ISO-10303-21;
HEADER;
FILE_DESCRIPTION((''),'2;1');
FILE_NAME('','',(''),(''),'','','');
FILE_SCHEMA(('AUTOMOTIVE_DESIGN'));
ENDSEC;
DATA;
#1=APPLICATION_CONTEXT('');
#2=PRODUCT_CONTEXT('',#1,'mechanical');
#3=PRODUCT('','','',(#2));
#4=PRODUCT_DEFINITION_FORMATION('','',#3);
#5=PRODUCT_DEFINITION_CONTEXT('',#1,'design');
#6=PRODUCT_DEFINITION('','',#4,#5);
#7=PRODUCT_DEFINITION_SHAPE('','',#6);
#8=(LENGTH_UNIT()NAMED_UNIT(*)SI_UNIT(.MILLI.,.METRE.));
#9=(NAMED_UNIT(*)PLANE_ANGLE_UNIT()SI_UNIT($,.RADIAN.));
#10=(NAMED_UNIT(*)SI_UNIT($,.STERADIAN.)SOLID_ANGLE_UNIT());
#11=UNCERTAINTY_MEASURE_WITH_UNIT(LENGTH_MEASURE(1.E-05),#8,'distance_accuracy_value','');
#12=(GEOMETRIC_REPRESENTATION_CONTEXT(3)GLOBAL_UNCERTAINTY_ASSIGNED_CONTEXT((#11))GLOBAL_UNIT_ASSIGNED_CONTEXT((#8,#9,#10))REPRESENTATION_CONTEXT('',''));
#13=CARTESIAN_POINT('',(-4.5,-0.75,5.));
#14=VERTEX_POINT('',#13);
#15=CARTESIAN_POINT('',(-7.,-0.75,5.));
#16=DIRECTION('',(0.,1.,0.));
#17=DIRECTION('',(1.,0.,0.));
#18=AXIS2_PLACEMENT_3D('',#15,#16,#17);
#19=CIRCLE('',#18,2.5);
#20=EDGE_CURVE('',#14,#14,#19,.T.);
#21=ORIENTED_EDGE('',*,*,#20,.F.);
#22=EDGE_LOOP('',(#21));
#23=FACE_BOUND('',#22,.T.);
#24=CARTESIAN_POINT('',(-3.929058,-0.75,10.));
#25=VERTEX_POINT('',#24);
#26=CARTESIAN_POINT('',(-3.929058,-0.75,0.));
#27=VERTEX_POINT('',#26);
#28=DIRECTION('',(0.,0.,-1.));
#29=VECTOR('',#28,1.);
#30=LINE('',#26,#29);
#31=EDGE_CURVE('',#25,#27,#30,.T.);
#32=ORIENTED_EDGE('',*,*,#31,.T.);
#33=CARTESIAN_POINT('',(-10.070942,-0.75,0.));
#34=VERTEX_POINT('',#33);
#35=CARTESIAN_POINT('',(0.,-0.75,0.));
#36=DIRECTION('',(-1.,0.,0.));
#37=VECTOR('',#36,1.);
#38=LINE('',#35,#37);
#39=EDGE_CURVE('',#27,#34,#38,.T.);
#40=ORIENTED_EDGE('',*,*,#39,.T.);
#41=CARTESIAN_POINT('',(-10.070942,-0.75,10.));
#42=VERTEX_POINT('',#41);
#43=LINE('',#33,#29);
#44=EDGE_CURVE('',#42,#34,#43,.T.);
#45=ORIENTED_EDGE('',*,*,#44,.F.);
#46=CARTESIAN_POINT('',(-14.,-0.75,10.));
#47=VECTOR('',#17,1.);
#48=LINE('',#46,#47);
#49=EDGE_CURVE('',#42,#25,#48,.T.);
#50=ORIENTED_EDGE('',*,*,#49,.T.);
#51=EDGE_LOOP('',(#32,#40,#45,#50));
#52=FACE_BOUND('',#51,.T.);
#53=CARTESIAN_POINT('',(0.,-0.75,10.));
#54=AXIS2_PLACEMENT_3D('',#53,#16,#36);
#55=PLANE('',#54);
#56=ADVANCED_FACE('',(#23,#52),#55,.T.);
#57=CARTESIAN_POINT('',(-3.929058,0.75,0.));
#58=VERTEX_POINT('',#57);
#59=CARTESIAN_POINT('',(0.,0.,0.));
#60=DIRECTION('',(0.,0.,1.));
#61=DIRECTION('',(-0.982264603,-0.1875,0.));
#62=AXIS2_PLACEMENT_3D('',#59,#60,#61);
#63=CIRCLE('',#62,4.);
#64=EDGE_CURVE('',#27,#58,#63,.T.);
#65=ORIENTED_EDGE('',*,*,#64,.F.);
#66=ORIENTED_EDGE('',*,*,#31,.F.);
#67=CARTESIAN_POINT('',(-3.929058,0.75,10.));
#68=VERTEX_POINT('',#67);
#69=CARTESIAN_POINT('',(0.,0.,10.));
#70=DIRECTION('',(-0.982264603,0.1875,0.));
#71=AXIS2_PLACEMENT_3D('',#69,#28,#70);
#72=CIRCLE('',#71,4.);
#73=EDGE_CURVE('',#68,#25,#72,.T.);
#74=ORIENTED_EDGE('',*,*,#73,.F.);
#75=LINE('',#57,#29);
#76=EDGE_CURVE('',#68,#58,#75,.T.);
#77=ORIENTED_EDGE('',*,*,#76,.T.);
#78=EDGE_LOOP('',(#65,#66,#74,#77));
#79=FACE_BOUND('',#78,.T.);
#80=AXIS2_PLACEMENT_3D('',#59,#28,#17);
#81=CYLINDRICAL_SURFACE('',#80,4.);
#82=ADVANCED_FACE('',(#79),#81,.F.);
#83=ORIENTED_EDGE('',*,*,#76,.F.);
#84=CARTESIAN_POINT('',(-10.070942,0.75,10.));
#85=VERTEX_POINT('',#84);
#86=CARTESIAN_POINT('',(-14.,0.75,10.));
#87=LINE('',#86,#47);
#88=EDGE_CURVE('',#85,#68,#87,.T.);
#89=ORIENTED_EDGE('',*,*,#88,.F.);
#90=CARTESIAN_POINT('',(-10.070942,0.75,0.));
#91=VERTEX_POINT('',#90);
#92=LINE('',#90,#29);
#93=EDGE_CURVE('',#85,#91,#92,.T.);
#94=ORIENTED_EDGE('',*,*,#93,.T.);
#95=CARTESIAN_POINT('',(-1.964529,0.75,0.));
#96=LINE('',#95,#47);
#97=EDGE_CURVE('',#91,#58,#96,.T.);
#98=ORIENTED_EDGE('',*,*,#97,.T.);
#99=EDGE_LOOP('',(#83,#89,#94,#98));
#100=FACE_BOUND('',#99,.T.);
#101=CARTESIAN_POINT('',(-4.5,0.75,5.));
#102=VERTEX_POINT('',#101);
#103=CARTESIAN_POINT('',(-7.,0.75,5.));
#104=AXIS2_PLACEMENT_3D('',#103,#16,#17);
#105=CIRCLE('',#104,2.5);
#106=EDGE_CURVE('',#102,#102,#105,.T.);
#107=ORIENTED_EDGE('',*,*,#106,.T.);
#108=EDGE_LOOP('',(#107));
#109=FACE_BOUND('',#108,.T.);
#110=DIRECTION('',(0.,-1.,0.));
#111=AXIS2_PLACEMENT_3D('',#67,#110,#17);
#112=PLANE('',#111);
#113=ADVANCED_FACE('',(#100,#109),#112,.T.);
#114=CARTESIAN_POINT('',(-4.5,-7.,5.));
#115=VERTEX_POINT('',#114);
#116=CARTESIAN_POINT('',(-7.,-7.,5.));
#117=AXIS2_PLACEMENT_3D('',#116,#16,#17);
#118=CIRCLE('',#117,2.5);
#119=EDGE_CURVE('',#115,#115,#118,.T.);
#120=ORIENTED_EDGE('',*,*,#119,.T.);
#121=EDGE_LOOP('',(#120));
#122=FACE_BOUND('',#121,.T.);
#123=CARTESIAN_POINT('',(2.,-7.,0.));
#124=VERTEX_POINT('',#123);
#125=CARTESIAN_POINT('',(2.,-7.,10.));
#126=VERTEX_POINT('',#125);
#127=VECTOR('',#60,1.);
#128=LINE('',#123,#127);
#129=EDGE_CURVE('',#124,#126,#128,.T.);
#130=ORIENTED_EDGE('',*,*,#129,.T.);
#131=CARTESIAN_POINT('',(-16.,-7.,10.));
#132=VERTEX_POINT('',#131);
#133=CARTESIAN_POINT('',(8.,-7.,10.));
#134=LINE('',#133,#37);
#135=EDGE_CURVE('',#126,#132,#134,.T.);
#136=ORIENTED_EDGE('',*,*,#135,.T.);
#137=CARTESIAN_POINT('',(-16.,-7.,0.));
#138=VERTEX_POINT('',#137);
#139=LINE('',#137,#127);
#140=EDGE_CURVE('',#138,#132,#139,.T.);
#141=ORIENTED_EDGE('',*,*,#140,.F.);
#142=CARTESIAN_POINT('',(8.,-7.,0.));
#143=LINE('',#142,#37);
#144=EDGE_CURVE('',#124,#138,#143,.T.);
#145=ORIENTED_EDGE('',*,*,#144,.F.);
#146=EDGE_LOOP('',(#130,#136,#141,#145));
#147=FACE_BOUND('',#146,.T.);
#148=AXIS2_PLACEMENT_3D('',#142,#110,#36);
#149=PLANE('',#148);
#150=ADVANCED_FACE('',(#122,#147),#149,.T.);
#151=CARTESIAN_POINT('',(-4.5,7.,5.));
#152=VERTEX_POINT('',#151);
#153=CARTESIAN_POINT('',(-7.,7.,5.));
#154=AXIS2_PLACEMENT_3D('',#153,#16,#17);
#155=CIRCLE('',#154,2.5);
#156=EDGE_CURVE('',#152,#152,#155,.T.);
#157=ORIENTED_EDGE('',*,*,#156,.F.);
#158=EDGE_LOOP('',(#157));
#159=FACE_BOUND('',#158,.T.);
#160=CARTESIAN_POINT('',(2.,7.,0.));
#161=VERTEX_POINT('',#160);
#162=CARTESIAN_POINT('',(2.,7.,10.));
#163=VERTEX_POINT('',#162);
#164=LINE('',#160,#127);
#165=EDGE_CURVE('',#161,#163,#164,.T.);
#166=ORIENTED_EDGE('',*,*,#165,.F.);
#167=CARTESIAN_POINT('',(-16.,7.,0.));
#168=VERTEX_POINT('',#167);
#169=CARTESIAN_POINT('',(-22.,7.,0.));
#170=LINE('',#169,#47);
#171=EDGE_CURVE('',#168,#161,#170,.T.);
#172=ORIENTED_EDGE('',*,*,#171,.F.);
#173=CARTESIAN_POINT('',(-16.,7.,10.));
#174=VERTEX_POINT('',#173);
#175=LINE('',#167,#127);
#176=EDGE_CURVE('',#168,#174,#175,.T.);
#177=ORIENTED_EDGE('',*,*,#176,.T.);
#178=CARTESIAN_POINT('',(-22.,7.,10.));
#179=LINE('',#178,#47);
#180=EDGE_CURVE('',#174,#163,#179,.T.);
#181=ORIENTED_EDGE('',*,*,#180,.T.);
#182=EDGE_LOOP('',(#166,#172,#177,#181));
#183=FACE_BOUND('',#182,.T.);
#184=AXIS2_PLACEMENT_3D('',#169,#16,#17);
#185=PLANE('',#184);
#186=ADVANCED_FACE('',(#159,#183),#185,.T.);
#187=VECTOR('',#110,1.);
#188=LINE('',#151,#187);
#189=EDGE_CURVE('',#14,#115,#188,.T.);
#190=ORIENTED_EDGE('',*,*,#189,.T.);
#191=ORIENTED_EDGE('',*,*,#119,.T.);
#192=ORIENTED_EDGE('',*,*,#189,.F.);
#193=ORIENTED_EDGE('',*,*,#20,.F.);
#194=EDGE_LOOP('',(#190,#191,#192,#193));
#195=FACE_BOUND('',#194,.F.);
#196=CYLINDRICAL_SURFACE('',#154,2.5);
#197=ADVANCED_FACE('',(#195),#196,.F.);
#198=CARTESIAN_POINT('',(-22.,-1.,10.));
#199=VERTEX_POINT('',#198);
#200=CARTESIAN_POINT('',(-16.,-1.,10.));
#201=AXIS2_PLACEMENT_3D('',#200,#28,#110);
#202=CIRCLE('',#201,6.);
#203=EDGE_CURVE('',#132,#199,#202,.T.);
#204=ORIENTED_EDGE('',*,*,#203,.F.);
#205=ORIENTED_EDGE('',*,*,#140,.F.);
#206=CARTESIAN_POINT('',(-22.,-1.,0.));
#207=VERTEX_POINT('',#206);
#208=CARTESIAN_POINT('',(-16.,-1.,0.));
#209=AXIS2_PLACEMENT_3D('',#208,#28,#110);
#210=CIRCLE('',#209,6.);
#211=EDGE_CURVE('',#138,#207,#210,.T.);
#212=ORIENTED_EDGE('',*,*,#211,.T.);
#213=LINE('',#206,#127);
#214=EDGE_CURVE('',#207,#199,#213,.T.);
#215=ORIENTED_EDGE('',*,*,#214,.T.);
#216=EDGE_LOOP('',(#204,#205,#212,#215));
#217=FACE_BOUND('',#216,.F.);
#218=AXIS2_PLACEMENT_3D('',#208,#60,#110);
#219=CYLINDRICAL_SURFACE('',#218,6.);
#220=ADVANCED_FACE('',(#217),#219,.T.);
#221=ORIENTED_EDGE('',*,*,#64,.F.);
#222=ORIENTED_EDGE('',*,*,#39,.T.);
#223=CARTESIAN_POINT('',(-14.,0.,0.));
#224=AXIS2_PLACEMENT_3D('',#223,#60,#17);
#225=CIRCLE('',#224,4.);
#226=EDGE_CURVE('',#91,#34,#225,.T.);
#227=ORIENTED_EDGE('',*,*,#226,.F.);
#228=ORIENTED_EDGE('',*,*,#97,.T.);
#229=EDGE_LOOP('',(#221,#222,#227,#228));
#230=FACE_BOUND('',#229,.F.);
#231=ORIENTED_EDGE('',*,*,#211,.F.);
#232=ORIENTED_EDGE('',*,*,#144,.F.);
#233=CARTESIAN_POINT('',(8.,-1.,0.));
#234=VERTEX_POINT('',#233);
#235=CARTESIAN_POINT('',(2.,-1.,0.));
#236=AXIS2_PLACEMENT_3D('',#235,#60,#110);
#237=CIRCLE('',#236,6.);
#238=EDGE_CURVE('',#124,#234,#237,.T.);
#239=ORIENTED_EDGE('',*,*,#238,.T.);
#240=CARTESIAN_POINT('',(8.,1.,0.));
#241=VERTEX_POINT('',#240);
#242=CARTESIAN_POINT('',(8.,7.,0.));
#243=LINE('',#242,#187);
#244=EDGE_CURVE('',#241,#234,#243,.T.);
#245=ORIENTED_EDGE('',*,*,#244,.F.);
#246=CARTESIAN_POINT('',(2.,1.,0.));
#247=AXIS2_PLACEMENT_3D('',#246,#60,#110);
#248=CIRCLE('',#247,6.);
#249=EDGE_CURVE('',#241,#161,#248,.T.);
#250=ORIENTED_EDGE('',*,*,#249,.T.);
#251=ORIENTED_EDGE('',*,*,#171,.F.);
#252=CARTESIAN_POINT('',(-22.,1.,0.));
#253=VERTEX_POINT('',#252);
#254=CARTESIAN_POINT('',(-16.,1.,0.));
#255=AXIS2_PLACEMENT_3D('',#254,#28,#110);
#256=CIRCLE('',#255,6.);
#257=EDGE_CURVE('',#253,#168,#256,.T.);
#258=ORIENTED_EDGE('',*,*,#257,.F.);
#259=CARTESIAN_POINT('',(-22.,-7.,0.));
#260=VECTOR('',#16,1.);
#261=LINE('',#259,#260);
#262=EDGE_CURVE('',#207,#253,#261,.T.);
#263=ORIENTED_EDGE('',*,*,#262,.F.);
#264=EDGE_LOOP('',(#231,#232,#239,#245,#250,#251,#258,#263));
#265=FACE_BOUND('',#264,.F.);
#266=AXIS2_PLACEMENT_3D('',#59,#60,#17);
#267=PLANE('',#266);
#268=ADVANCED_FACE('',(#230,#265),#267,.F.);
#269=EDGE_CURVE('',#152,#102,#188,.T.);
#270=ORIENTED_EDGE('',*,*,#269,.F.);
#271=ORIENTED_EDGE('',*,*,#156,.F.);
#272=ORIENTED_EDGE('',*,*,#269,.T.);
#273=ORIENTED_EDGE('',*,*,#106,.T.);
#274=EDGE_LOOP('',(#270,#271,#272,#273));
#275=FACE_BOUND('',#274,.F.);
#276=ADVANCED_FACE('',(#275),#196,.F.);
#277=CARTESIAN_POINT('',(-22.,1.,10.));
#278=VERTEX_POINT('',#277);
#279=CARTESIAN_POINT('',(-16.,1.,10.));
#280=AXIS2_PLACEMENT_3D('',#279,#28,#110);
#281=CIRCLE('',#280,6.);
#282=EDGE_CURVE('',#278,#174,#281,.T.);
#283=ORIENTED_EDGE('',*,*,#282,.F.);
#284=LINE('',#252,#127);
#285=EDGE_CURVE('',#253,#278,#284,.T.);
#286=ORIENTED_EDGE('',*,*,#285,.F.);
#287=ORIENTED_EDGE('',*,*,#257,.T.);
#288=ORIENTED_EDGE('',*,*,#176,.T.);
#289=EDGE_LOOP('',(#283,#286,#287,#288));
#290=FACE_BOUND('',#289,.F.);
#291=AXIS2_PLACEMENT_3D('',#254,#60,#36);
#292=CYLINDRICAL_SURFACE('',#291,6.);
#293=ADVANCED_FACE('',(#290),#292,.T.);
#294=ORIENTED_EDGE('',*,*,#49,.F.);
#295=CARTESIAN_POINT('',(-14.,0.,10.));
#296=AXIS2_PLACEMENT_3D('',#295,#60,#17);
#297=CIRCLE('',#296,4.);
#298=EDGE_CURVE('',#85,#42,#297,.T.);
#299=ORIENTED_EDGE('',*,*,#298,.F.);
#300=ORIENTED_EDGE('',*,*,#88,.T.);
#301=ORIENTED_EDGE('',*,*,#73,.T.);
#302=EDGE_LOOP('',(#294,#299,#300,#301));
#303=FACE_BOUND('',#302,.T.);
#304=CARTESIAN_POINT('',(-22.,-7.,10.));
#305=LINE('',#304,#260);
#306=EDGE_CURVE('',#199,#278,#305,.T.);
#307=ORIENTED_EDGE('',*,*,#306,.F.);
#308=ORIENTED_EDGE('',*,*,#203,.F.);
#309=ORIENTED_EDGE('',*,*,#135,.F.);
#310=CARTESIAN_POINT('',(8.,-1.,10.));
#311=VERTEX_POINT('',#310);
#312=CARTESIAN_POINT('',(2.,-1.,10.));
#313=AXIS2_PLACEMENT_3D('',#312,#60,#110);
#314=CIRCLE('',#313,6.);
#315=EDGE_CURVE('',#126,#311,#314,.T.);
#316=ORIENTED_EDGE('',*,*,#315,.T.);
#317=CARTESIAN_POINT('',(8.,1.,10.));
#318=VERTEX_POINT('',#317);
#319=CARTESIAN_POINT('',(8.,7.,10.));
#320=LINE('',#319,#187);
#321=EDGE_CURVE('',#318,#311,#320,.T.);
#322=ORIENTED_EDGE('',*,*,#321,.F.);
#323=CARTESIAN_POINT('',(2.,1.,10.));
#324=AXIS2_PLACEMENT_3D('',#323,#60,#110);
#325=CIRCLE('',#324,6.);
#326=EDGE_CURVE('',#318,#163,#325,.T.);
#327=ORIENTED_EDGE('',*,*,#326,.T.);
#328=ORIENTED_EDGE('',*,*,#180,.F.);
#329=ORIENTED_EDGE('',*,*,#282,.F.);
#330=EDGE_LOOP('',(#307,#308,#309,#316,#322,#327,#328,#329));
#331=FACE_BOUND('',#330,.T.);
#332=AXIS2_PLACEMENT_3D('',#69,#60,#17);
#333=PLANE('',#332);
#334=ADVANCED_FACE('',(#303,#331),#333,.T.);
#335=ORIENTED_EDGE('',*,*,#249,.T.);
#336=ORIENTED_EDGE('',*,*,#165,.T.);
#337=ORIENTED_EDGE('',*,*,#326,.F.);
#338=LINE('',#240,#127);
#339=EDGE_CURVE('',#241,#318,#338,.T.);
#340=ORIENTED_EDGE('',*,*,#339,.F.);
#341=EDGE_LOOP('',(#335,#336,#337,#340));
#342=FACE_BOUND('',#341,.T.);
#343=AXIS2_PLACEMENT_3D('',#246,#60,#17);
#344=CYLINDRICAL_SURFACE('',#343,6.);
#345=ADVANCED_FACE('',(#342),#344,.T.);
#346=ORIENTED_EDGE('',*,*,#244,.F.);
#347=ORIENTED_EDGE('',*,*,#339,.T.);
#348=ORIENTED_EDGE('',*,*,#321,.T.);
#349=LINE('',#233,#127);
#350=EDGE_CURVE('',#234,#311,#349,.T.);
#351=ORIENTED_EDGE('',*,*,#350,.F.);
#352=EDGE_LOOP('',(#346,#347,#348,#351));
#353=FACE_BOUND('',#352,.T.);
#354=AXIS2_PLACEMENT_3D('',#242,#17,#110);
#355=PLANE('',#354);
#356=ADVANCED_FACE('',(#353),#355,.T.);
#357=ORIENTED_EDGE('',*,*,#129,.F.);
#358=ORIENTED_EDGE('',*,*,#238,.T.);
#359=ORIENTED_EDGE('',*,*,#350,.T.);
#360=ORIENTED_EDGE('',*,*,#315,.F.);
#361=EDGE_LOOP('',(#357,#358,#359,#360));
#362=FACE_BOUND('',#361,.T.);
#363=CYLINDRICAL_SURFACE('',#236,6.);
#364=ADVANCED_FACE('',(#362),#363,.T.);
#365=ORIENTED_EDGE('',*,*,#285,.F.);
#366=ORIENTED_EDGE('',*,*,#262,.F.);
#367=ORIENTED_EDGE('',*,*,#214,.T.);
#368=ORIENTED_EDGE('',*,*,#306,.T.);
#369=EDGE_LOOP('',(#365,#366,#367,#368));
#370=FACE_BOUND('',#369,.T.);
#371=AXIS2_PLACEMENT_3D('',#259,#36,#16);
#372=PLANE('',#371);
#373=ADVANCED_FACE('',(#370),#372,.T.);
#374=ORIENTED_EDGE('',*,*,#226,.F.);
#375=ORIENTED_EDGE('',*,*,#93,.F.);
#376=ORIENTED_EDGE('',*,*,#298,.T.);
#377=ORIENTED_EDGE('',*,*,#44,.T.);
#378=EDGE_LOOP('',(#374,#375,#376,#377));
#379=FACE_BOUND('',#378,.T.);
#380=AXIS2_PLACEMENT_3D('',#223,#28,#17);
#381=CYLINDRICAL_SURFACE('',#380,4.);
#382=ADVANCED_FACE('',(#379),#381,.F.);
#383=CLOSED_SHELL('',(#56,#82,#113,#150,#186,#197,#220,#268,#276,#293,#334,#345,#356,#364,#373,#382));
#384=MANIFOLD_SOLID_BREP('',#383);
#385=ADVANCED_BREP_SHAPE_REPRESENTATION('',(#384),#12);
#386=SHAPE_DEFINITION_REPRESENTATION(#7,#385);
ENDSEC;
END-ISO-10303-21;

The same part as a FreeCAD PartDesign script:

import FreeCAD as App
import Part
import Sketcher

V = App.Vector


def edges_at(feature, points):
    """Names of the edges that pass closest to the given points."""
    edges = feature.Shape.Edges
    near = lambda p: min(range(len(edges)), key=lambda i: edges[i].distToShape(Part.Vertex(*p))[0])
    return sorted({f"Edge{near(p) + 1}" for p in points})

doc = App.newDocument("Part")
params = doc.addObject("Spreadsheet::Sheet", "Params")
for row, (alias, value) in enumerate([
    ("sketch1_diameter", "8 mm"),
    ("sketch1_width", "30 mm"),
    ("sketch1_height", "14 mm"),
    ("pad1_length", "10 mm"),
    ("sketch2_diameter", "5 mm"),
    ("fillet_radius", "6 mm"),
    ("sketch3_height", "1.5 mm"),
    ("sketch3_width", "14 mm"),
], start=1):
    params.set(f"A{row}", alias)
    params.set(f"B{row}", "=" + value)
    params.setAlias(f"B{row}", alias)

body = doc.addObject("PartDesign::Body", "Body")

sketch1 = body.newObject("Sketcher::SketchObject", "Sketch")
sketch1.AttachmentSupport = (doc.getObject("XY_Plane"), [""])
sketch1.MapMode = "FlatFace"
sketch1.addGeometry([
    Part.LineSegment(V(-22, -7, 0), V(8, -7, 0)),
    Part.LineSegment(V(8, -7, 0), V(8, 7, 0)),
    Part.LineSegment(V(8, 7, 0), V(-22, 7, 0)),
    Part.LineSegment(V(-22, 7, 0), V(-22, -7, 0)),
    Part.Circle(V(-14, 0, 0), V(0, 0, 1), 4),
    Part.Circle(V(0, 0, 0), V(0, 0, 1), 4),
], False)
sketch1.addConstraint([
    Sketcher.Constraint("Coincident", 0, 2, 1, 1),
    Sketcher.Constraint("Coincident", 1, 2, 2, 1),
    Sketcher.Constraint("Coincident", 2, 2, 3, 1),
    Sketcher.Constraint("Coincident", 3, 2, 0, 1),
    Sketcher.Constraint("Horizontal", 0),
    Sketcher.Constraint("Vertical", 1),
    Sketcher.Constraint("Horizontal", 2),
    Sketcher.Constraint("Vertical", 3),
    Sketcher.Constraint("Coincident", 5, 3, -1, 1),
    Sketcher.Constraint("Equal", 4, 5),
    Sketcher.Constraint("PointOnObject", 4, 3, -1),
    Sketcher.Constraint("Diameter", 4, 8.0),
    Sketcher.Constraint("DistanceX", 0, 1, 0, 2, 30.0),
    Sketcher.Constraint("DistanceY", 1, 1, 1, 2, 14.0),
    Sketcher.Constraint("DistanceX", 4, 3, -1, 1, 14.0),
    Sketcher.Constraint("DistanceX", -1, 1, 0, 2, 8.0),
    Sketcher.Constraint("DistanceY", 0, 2, -1, 1, 7.0),
])
sketch1.setExpression("Constraints[11]", "Params.sketch1_diameter")
sketch1.setExpression("Constraints[12]", "Params.sketch1_width")
sketch1.setExpression("Constraints[13]", "Params.sketch1_height")
pad1 = body.newObject("PartDesign::Pad", "Pad")
pad1.Profile = sketch1
pad1.setExpression("Length", "Params.pad1_length")

sketch2 = body.newObject("Sketcher::SketchObject", "Sketch001")
sketch2.AttachmentSupport = (doc.getObject("XZ_Plane"), [""])
sketch2.MapMode = "FlatFace"
sketch2.AttachmentOffset = App.Placement(V(0, 0, -7), App.Rotation())
sketch2.addGeometry(Part.Circle(V(-7, 5, 0), V(0, 0, 1), 2.5), False)
sketch2.addConstraint([
    Sketcher.Constraint("Diameter", 0, 5.0),
    Sketcher.Constraint("DistanceY", -1, 1, 0, 3, 5.0),
    Sketcher.Constraint("DistanceX", 0, 3, -1, 1, 7.0),
])
sketch2.setExpression("Constraints[0]", "Params.sketch2_diameter")
pocket1 = body.newObject("PartDesign::Pocket", "Pocket")
pocket1.Profile = sketch2
pocket1.Type = "ThroughAll"
pocket1.Reversed = True
doc.recompute()

fillet = body.newObject("PartDesign::Fillet", "Fillet")
fillet.Base = (pocket1, edges_at(pocket1, [
    (8, 7, 5),
    (-22, 7, 5),
    (-22, -7, 5),
    (8, -7, 5),
]))
fillet.setExpression("Radius", "Params.fillet_radius")

sketch3 = body.newObject("Sketcher::SketchObject", "Sketch002")
sketch3.AttachmentSupport = (doc.getObject("XY_Plane"), [""])
sketch3.MapMode = "FlatFace"
sketch3.AttachmentOffset = App.Placement(V(0, 0, 10), App.Rotation())
sketch3.addGeometry([
    Part.LineSegment(V(0, 0.8, 0), V(-14, 0.8, 0)),
    Part.LineSegment(V(-14, 0.8, 0), V(-14, -0.8, 0)),
    Part.LineSegment(V(-14, -0.8, 0), V(0, -0.8, 0)),
    Part.LineSegment(V(0, -0.8, 0), V(0, 0.8, 0)),
], False)
sketch3.addConstraint([
    Sketcher.Constraint("Coincident", 0, 2, 1, 1),
    Sketcher.Constraint("Coincident", 1, 2, 2, 1),
    Sketcher.Constraint("Coincident", 2, 2, 3, 1),
    Sketcher.Constraint("Coincident", 3, 2, 0, 1),
    Sketcher.Constraint("Horizontal", 0),
    Sketcher.Constraint("Vertical", 1),
    Sketcher.Constraint("Horizontal", 2),
    Sketcher.Constraint("Vertical", 3),
    Sketcher.Constraint("Symmetric", 2, 2, 3, 2, -1, 1),
    Sketcher.Constraint("DistanceY", 1, 2, 1, 1, 1.5),
    Sketcher.Constraint("DistanceX", 0, 2, 0, 1, 14.0),
])
sketch3.setExpression("Constraints[9]", "Params.sketch3_height")
sketch3.setExpression("Constraints[10]", "Params.sketch3_width")
pocket2 = body.newObject("PartDesign::Pocket", "Pocket001")
pocket2.Profile = sketch3
pocket2.Type = "ThroughAll"

doc.recompute()
